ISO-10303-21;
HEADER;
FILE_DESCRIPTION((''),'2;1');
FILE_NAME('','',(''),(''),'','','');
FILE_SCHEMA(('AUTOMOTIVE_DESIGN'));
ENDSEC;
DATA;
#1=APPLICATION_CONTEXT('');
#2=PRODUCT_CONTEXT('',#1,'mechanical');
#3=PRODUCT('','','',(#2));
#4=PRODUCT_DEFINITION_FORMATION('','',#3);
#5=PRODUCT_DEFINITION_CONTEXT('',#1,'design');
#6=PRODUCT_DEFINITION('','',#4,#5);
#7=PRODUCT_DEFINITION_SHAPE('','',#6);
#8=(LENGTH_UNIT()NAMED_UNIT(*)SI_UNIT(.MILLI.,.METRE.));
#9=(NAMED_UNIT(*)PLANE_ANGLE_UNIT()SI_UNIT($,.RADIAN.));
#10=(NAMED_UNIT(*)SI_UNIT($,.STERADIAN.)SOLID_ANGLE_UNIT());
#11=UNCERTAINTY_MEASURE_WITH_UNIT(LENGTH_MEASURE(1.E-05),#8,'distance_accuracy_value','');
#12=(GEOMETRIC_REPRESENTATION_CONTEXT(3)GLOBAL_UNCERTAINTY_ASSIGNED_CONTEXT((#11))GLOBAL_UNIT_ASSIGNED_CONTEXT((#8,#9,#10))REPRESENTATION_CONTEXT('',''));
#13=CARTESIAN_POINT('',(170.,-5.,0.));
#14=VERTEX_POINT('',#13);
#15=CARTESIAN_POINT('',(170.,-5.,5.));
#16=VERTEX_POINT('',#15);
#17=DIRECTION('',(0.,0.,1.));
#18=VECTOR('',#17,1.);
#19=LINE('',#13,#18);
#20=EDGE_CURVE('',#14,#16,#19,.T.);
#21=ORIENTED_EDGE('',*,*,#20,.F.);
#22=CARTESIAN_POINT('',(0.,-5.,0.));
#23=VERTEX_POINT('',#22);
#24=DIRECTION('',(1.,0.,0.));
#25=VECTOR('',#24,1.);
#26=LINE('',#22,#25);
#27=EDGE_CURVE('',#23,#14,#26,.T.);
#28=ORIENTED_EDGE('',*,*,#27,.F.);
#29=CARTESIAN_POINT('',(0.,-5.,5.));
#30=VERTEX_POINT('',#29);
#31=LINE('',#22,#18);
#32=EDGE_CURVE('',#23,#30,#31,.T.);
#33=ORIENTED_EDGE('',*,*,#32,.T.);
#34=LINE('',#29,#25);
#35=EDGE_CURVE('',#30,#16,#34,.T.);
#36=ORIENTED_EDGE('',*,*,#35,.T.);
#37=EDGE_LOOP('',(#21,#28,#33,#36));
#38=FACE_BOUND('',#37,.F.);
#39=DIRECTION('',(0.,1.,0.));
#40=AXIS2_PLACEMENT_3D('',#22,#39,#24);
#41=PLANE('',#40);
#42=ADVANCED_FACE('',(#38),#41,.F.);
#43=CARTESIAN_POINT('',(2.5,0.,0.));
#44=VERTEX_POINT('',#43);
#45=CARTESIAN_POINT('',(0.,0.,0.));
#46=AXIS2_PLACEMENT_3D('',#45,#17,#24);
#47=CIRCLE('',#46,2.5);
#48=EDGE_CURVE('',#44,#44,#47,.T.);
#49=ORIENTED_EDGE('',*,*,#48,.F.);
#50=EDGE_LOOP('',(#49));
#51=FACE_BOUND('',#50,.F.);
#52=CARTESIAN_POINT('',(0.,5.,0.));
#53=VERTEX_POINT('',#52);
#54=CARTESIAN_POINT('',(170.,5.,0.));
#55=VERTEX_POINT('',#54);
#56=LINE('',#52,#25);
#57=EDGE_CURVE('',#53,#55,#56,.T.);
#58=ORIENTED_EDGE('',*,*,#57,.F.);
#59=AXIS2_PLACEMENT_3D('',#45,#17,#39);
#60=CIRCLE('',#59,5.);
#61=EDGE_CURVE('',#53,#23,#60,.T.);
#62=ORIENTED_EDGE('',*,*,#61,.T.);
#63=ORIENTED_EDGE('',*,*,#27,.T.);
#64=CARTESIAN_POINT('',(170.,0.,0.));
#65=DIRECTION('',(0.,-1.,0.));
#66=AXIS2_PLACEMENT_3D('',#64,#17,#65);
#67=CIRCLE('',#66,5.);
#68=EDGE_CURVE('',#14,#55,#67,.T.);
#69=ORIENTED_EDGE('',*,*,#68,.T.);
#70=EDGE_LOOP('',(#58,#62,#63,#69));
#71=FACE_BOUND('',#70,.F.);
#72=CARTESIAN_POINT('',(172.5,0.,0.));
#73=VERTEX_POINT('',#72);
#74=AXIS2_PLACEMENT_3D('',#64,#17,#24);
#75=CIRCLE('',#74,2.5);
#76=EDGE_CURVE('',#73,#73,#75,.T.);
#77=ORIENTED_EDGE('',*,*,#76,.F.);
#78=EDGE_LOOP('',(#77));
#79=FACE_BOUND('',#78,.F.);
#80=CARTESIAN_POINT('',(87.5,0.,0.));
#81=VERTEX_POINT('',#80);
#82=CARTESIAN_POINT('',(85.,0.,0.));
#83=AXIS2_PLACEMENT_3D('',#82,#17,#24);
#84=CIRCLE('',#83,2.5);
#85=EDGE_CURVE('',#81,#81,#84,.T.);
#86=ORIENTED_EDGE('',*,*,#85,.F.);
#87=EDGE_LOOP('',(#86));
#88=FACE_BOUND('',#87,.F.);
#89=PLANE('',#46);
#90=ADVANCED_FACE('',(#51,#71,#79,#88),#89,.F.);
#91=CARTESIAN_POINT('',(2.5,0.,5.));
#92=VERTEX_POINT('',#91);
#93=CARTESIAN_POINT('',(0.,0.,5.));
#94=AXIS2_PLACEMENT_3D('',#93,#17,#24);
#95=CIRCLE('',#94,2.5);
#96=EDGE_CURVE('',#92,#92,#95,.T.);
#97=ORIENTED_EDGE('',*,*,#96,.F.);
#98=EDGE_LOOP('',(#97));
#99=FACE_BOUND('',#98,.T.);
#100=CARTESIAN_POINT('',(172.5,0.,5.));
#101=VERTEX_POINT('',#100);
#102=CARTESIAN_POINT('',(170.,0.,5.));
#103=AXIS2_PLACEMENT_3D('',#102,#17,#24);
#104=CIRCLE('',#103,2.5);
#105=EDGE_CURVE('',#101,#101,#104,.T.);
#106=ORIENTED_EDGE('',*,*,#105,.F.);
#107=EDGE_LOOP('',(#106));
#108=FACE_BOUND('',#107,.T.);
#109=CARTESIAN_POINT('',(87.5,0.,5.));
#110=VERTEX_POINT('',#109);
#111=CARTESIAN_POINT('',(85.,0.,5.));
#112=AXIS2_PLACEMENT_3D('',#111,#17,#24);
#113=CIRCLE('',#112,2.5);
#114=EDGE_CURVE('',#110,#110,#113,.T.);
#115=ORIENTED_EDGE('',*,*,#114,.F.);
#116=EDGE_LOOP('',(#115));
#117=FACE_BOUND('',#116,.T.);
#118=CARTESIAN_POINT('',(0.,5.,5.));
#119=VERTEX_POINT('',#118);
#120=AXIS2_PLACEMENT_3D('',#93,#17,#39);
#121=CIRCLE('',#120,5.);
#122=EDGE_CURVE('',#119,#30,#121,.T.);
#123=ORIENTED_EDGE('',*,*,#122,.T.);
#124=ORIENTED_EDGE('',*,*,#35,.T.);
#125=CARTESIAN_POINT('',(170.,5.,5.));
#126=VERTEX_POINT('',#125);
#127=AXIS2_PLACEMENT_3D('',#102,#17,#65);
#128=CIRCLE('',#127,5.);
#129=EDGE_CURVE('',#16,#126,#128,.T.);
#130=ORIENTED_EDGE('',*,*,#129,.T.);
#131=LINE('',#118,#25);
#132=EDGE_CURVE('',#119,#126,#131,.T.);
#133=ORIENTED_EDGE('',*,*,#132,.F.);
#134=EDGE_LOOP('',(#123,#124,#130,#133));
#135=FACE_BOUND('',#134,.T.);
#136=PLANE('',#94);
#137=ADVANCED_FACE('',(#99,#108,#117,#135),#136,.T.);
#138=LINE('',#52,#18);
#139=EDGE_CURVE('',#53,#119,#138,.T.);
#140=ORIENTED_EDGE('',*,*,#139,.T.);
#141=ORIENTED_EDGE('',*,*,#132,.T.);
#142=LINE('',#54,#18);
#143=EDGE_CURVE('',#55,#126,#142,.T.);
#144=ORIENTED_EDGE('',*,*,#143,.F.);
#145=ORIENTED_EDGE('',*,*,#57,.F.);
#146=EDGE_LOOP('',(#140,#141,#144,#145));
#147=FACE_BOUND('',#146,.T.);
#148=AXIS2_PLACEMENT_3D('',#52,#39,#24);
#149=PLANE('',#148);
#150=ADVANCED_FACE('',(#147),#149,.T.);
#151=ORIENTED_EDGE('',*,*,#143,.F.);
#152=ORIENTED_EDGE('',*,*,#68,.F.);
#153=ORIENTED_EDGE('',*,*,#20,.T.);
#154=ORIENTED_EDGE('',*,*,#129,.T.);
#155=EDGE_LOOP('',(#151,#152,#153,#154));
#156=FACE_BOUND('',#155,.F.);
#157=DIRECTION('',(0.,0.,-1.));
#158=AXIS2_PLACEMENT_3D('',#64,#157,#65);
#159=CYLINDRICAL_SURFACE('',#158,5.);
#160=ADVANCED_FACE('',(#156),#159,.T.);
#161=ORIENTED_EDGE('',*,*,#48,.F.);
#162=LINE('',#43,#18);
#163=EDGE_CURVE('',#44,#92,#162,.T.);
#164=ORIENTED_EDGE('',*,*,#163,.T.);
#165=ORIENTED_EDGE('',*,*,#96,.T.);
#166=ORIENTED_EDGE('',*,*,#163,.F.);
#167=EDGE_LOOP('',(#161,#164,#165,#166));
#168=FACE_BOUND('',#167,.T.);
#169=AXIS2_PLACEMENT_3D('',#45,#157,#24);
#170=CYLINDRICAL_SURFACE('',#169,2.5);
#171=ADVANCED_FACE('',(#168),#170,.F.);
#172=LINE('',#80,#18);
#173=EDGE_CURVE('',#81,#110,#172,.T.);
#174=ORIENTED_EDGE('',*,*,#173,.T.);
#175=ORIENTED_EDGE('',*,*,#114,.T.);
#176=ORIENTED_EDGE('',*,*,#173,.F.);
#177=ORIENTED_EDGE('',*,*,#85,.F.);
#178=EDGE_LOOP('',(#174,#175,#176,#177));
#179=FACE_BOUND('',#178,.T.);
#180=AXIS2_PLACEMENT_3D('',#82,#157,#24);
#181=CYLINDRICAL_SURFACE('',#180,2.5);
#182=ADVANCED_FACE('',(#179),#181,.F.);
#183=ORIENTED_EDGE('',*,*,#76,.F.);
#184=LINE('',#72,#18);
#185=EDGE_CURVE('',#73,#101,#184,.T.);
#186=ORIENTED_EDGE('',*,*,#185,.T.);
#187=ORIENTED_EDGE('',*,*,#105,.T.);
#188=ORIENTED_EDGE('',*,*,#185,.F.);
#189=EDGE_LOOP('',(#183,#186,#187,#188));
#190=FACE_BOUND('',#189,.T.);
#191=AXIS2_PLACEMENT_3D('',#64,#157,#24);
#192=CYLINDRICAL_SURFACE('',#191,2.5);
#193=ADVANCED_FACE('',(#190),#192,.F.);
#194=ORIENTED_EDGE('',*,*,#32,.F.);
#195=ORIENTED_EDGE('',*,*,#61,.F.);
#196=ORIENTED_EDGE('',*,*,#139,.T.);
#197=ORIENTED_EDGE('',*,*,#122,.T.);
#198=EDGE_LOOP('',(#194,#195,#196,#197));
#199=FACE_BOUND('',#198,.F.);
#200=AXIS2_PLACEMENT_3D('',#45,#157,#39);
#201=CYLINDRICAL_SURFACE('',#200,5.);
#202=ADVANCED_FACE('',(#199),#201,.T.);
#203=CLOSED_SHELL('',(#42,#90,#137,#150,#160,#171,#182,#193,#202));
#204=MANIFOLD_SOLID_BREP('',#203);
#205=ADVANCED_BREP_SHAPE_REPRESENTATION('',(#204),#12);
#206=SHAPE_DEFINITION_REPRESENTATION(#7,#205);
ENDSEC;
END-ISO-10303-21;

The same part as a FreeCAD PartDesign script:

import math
import FreeCAD as App
import Part
import Sketcher
from FreeCAD import Vector
Q = App.Units.Quantity

doc = App.newDocument("Part")
body = doc.addObject("PartDesign::Body", "Body")

sketch1 = body.newObject("Sketcher::SketchObject", "Sketch")
sketch1.AttachmentSupport = (doc.getObject("XY_Plane"), [""])
sketch1.MapMode = "FlatFace"
sketch1.addGeometry([
    Part.LineSegment(Vector(170, 5, 0), Vector(0, 5, 0)),
    Part.ArcOfCircle(Part.Circle(Vector(0, 0, 0), Vector(0, 0, 1), 5), math.radians(90), math.radians(270)),
    Part.LineSegment(Vector(0, -5, 0), Vector(170, -5, 0)),
    Part.ArcOfCircle(Part.Circle(Vector(170, 0, 0), Vector(0, 0, 1), 5), math.radians(-90), math.radians(90)),
    Part.Circle(Vector(0, 0, 0), Vector(0, 0, 1), 2.5),
    Part.Circle(Vector(85, 0, 0), Vector(0, 0, 1), 2.5),
    Part.Circle(Vector(170, 0, 0), Vector(0, 0, 1), 2.5),
], False)
sketch1.addConstraint([
    Sketcher.Constraint("Tangent", 0, 2, 1, 1),
    Sketcher.Constraint("Tangent", 1, 2, 2, 1),
    Sketcher.Constraint("Tangent", 2, 2, 3, 1),
    Sketcher.Constraint("Tangent", 3, 2, 0, 1),
    Sketcher.Constraint("Horizontal", 0),
    Sketcher.Constraint("Horizontal", 2),
    Sketcher.Constraint("Coincident", 1, 3, -1, 1),
    Sketcher.Constraint("Coincident", 4, 3, -1, 1),
    Sketcher.Constraint("Coincident", 6, 3, 3, 3),
    Sketcher.Constraint("Equal", 4, 5),
    Sketcher.Constraint("Equal", 5, 6),
    Sketcher.Constraint("PointOnObject", 5, 3, -1),
    Sketcher.Constraint("Diameter", 4, Q("5 mm")),
    Sketcher.Constraint("Radius", 1, Q("5 mm")),
    Sketcher.Constraint("DistanceX", -1, 1, 5, 3, Q("85 mm")),
    Sketcher.Constraint("DistanceX", 5, 3, 3, 3, Q("85 mm")),
])
pad1 = body.newObject("PartDesign::Pad", "Pad")
pad1.Profile = sketch1
pad1.Length = 5

doc.recompute()
